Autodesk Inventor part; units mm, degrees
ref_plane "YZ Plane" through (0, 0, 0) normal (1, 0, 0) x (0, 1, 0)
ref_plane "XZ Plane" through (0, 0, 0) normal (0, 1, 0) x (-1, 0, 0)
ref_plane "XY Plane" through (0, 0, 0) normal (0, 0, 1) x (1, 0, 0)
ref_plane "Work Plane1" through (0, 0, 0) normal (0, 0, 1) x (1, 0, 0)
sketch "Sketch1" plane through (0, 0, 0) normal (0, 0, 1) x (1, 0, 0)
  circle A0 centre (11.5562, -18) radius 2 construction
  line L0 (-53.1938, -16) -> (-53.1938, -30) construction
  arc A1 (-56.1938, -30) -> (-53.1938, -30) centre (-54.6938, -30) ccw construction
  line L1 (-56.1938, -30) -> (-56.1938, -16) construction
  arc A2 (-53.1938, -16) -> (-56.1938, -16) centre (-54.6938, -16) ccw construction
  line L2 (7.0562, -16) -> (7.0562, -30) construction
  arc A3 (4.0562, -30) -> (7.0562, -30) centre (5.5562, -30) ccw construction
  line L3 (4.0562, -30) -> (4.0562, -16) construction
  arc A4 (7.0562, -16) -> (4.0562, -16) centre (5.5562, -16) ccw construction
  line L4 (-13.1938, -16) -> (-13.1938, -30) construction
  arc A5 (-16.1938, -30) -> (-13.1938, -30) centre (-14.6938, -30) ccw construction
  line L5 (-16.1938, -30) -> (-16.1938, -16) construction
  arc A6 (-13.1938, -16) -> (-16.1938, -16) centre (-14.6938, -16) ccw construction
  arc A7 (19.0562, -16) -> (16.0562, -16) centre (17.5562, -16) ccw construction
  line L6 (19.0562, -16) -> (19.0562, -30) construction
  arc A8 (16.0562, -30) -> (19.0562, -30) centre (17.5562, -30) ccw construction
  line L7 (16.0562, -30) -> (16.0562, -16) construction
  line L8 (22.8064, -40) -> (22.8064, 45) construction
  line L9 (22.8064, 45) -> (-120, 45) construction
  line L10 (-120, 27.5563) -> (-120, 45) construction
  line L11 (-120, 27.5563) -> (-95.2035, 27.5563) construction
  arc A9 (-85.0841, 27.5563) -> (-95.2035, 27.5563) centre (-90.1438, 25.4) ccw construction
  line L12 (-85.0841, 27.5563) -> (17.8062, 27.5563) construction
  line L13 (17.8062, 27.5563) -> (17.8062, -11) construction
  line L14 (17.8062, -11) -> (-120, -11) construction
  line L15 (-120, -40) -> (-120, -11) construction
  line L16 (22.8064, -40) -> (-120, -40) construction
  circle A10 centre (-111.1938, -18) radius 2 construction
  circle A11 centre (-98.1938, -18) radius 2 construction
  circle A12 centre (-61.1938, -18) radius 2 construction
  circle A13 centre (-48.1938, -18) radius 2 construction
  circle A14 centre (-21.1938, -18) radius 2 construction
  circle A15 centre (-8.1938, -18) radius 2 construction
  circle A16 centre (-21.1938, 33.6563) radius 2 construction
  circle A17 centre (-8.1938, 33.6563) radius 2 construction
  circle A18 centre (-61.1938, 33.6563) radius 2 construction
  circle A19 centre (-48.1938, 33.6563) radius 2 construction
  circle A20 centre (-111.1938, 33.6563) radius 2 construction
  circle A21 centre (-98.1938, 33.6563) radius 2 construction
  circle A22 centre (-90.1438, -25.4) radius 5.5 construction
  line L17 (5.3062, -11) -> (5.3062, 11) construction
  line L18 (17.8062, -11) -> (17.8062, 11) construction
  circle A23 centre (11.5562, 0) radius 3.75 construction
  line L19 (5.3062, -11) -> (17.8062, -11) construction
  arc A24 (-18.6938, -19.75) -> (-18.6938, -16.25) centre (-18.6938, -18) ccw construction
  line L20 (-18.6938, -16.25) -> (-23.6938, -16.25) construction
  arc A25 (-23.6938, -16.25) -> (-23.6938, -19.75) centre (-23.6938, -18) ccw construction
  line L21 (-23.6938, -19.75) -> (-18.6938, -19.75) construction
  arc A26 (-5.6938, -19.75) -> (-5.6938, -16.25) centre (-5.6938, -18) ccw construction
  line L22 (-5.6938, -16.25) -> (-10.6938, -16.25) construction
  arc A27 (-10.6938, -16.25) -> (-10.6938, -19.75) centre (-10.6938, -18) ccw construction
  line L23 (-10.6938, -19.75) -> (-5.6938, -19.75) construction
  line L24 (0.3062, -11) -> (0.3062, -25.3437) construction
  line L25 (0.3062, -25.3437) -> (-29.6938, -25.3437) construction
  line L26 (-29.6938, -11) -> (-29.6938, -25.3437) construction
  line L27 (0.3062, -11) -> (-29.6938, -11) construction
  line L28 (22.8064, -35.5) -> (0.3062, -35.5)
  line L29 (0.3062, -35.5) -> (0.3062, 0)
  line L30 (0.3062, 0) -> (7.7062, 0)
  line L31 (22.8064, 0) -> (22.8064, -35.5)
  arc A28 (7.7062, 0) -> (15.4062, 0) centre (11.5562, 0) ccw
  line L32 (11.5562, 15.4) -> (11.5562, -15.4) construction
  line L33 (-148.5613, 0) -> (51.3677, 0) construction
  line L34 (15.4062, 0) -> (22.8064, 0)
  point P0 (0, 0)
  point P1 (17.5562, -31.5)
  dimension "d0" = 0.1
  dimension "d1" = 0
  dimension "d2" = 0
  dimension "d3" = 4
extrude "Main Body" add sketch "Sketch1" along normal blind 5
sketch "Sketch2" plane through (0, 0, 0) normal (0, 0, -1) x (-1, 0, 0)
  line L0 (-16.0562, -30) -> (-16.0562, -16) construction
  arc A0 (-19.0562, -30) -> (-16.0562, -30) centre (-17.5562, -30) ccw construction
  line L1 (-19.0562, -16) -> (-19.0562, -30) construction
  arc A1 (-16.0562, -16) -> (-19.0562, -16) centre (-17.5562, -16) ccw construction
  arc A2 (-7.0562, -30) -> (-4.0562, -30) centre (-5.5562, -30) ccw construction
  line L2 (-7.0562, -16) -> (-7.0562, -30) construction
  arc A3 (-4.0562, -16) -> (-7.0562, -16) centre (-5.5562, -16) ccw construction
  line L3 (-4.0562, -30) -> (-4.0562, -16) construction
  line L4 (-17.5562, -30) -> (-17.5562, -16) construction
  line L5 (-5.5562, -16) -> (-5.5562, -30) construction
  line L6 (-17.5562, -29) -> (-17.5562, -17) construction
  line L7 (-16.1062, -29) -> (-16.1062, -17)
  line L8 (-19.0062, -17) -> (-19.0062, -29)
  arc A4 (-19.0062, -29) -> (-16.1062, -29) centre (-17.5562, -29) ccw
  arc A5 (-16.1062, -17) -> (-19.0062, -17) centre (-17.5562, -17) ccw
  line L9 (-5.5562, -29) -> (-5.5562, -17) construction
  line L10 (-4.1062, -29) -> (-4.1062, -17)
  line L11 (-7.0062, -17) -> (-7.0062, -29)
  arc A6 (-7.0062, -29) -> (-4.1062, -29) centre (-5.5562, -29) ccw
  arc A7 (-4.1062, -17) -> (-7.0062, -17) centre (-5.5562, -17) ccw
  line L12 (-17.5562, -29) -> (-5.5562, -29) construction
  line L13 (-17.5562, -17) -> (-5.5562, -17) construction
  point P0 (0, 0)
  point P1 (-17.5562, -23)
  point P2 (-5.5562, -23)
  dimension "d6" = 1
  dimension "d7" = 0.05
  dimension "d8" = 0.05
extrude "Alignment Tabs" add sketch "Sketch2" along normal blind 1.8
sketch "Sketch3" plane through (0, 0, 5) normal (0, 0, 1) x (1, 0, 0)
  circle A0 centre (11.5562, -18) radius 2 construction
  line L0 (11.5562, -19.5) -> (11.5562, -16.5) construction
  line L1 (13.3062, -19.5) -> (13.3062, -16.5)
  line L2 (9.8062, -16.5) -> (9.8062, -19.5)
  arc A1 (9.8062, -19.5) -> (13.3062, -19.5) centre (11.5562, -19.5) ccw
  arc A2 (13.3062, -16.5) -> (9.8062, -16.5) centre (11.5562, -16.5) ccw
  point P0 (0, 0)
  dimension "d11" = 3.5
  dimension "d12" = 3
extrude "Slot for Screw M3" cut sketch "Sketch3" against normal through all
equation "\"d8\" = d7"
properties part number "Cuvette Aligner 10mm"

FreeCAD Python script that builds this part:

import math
import FreeCAD as App
import Part
import Sketcher

V = App.Vector

doc = App.newDocument("Part")
body = doc.addObject("PartDesign::Body", "Body")

# Sketch on XY plane
sketch1 = doc.addObject("Sketcher::SketchObject", "Sketch")
body.addObject(sketch1)
sketch1.AttachmentSupport = (doc.XY_Plane, [""])
sketch1.MapMode = "FlatFace"
sketch1.addGeometry([
    Part.LineSegment(V(0.3062, -35.5, 0), V(22.8064, -35.5, 0)),  # 0
    Part.LineSegment(V(22.8064, -35.5, 0), V(22.8064, 0, 0)),  # 1
    Part.LineSegment(V(22.8064, 0, 0), V(15.4062, 0, 0)),  # 2
    Part.ArcOfCircle(Part.Circle(V(11.5562, 0, 0), V(0, 0, 1), 3.85), math.radians(180), math.radians(360)),  # 3
    Part.LineSegment(V(7.7062, 0, 0), V(0.3062, 0, 0)),  # 4
    Part.LineSegment(V(0.3062, 0, 0), V(0.3062, -35.5, 0)),  # 5
], False)
sketch1.addConstraint([
    Sketcher.Constraint("Coincident", 0, 2, 1, 1),
    Sketcher.Constraint("Coincident", 1, 2, 2, 1),
    Sketcher.Constraint("Coincident", 2, 2, 3, 2),
    Sketcher.Constraint("Coincident", 3, 1, 4, 1),
    Sketcher.Constraint("Coincident", 4, 2, 5, 1),
    Sketcher.Constraint("Coincident", 5, 2, 0, 1),
    Sketcher.Constraint("Horizontal", 0),
    Sketcher.Constraint("Vertical", 1),
    Sketcher.Constraint("Horizontal", 2),
    Sketcher.Constraint("Horizontal", 4),
    Sketcher.Constraint("Vertical", 5),
    Sketcher.Constraint("PointOnObject", 3, 3, -1),
    Sketcher.Constraint("PointOnObject", 1, 2, -1),
    Sketcher.Constraint("PointOnObject", 3, 1, -1),
    Sketcher.Constraint("Equal", 2, 4),
    Sketcher.Constraint("Radius", 3, 3.85),
    Sketcher.Constraint("DistanceX", 4, 2, 4, 1, 7.4),
    Sketcher.Constraint("DistanceY", 1, 1, 1, 2, 35.5),
    Sketcher.Constraint("DistanceX", -1, 1, 3, 3, 11.5562),
])
pad1 = doc.addObject("PartDesign::Pad", "Pad")
body.addObject(pad1)
pad1.Profile = sketch1
pad1.Length = 5

# Sketch on XY plane
sketch2 = doc.addObject("Sketcher::SketchObject", "Sketch001")
body.addObject(sketch2)
sketch2.AttachmentSupport = (doc.XY_Plane, [""])
sketch2.MapMode = "FlatFace"
sketch2.addGeometry([
    Part.ArcOfCircle(Part.Circle(V(17.5562, -29, 0), V(0, 0, 1), 1.45), math.radians(180), math.radians(360)),  # 0
    Part.LineSegment(V(16.1062, -29, 0), V(16.1062, -17, 0)),  # 1
    Part.ArcOfCircle(Part.Circle(V(17.5562, -17, 0), V(0, 0, 1), 1.45), math.radians(0), math.radians(180)),  # 2
    Part.LineSegment(V(19.0062, -17, 0), V(19.0062, -29, 0)),  # 3
    Part.ArcOfCircle(Part.Circle(V(5.5562, -29, 0), V(0, 0, 1), 1.45), math.radians(180), math.radians(360)),  # 4
    Part.LineSegment(V(4.1062, -29, 0), V(4.1062, -17, 0)),  # 5
    Part.ArcOfCircle(Part.Circle(V(5.5562, -17, 0), V(0, 0, 1), 1.45), math.radians(0), math.radians(180)),  # 6
    Part.LineSegment(V(7.0062, -17, 0), V(7.0062, -29, 0)),  # 7
], False)
sketch2.addConstraint([
    Sketcher.Constraint("Tangent", 0, 1, 1, 1),
    Sketcher.Constraint("Tangent", 1, 2, 2, 2),
    Sketcher.Constraint("Tangent", 2, 1, 3, 1),
    Sketcher.Constraint("Tangent", 3, 2, 0, 2),
    Sketcher.Constraint("Tangent", 4, 1, 5, 1),
    Sketcher.Constraint("Tangent", 5, 2, 6, 2),
    Sketcher.Constraint("Tangent", 6, 1, 7, 1),
    Sketcher.Constraint("Tangent", 7, 2, 4, 2),
    Sketcher.Constraint("Vertical", 1),
    Sketcher.Constraint("Vertical", 3),
    Sketcher.Constraint("Vertical", 5),
    Sketcher.Constraint("Vertical", 7),
    Sketcher.Constraint("Equal", 2, 4),
    Sketcher.Constraint("Horizontal", 0, 3, 4, 3),
    Sketcher.Constraint("Horizontal", 2, 3, 6, 3),
    Sketcher.Constraint("DistanceY", 1, 1, 1, 2, 12.0),
    Sketcher.Constraint("Radius", 0, 1.45),
    Sketcher.Constraint("DistanceY", 0, 3, -1, 1, 29.0),
    Sketcher.Constraint("DistanceX", 4, 3, 0, 3, 12.0),
    Sketcher.Constraint("DistanceX", -1, 1, 0, 3, 17.5562),
])
pad2 = doc.addObject("PartDesign::Pad", "Pad001")
body.addObject(pad2)
pad2.Profile = sketch2
pad2.Length = 1.8
pad2.Reversed = True

# Sketch on XY plane
sketch3 = doc.addObject("Sketcher::SketchObject", "Sketch002")
body.addObject(sketch3)
sketch3.AttachmentSupport = (doc.XY_Plane, [""])
sketch3.MapMode = "FlatFace"
sketch3.AttachmentOffset = App.Placement(V(0, 0, 5), App.Rotation())
sketch3.addGeometry([
    Part.ArcOfCircle(Part.Circle(V(11.5562, -19.5, 0), V(0, 0, 1), 1.75), math.radians(180), math.radians(360)),
    Part.LineSegment(V(13.3062, -19.5, 0), V(13.3062, -16.5, 0)),
    Part.ArcOfCircle(Part.Circle(V(11.5562, -16.5, 0), V(0, 0, 1), 1.75), math.radians(0), math.radians(180)),
    Part.LineSegment(V(9.8062, -16.5, 0), V(9.8062, -19.5, 0)),
], False)
sketch3.addConstraint([
    Sketcher.Constraint("Tangent", 0, 2, 1, 1),
    Sketcher.Constraint("Tangent", 1, 2, 2, 1),
    Sketcher.Constraint("Tangent", 2, 2, 3, 1),
    Sketcher.Constraint("Tangent", 3, 2, 0, 1),
    Sketcher.Constraint("Vertical", 1),
    Sketcher.Constraint("Vertical", 3),
    Sketcher.Constraint("DistanceY", 1, 1, 1, 2, 3.0),
    Sketcher.Constraint("Radius", 0, 1.75),
    Sketcher.Constraint("DistanceY", 0, 3, -1, 1, 19.5),
    Sketcher.Constraint("DistanceX", -1, 1, 0, 3, 11.5562),
])
pocket1 = doc.addObject("PartDesign::Pocket", "Pocket")
body.addObject(pocket1)
pocket1.Profile = sketch3
pocket1.Type = "ThroughAll"

doc.recompute()
